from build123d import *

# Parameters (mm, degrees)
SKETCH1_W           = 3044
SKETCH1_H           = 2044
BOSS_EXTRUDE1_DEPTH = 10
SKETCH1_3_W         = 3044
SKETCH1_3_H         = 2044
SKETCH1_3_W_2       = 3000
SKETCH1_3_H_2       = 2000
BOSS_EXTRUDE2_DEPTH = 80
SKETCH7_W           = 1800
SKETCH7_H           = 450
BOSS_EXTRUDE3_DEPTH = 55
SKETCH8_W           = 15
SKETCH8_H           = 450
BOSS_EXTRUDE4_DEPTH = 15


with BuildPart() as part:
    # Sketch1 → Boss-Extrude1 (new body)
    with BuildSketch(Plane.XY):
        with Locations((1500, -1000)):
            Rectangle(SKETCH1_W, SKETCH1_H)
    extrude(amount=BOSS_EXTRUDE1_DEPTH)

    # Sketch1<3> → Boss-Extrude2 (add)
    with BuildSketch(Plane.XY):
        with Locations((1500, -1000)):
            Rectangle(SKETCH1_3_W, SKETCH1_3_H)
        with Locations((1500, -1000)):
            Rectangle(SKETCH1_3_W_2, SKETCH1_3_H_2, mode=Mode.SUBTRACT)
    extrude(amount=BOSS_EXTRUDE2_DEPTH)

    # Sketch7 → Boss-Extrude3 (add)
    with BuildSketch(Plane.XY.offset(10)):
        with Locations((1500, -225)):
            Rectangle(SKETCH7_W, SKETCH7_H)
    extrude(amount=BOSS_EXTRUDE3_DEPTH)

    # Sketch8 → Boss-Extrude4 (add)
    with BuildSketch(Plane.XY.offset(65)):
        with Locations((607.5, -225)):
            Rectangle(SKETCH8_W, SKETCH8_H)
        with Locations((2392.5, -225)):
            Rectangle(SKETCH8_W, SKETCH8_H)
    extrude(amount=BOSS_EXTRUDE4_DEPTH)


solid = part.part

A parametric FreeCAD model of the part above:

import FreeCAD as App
import Part
import Sketcher

V = App.Vector

doc = App.newDocument("Part")
params = doc.addObject("Spreadsheet::Sheet", "Params")
for row, (alias, value) in enumerate([
    ("sketch1_width", "3044 mm"),
    ("sketch1_height", "2044 mm"),
    ("pad1_length", "10 mm"),
    ("sketch2_width", "3044 mm"),
    ("sketch2_width2", "3000 mm"),
    ("sketch2_height", "2044 mm"),
    ("sketch2_height2", "2000 mm"),
    ("pad2_length", "80 mm"),
    ("sketch3_width", "1800 mm"),
    ("sketch3_height", "450 mm"),
    ("pad3_length", "55 mm"),
    ("sketch4_width", "15 mm"),
    ("sketch4_height", "450 mm"),
    ("pad4_length", "15 mm"),
], start=1):
    params.set(f"A{row}", alias)
    params.set(f"B{row}", "=" + value)
    params.setAlias(f"B{row}", alias)

body = doc.addObject("PartDesign::Body", "Body")

# Sketch on XY plane
sketch1 = body.newObject("Sketcher::SketchObject", "Sketch")
sketch1.AttachmentSupport = (doc.getObject("XY_Plane"), [""])
sketch1.MapMode = "FlatFace"
sketch1.addGeometry([
    Part.LineSegment(V(-22, 22, 0), V(-22, -2022, 0)),
    Part.LineSegment(V(-22, -2022, 0), V(3022, -2022, 0)),
    Part.LineSegment(V(3022, -2022, 0), V(3022, 22, 0)),
    Part.LineSegment(V(3022, 22, 0), V(-22, 22, 0)),
], False)
sketch1.addConstraint([
    Sketcher.Constraint("Coincident", 0, 2, 1, 1),
    Sketcher.Constraint("Coincident", 1, 2, 2, 1),
    Sketcher.Constraint("Coincident", 2, 2, 3, 1),
    Sketcher.Constraint("Coincident", 3, 2, 0, 1),
    Sketcher.Constraint("Vertical", 0),
    Sketcher.Constraint("Horizontal", 1),
    Sketcher.Constraint("Vertical", 2),
    Sketcher.Constraint("Horizontal", 3),
    Sketcher.Constraint("DistanceX", 1, 1, 1, 2, 3044.0),
    Sketcher.Constraint("DistanceY", 0, 2, 0, 1, 2044.0),
    Sketcher.Constraint("DistanceX", 0, 2, -1, 1, 22.0),
    Sketcher.Constraint("DistanceY", 0, 2, -1, 1, 2022.0),
])
sketch1.setExpression("Constraints[8]", "Params.sketch1_width")
sketch1.setExpression("Constraints[9]", "Params.sketch1_height")
pad1 = body.newObject("PartDesign::Pad", "Pad")
pad1.Profile = sketch1
pad1.setExpression("Length", "Params.pad1_length")

# Sketch on XY plane
sketch2 = body.newObject("Sketcher::SketchObject", "Sketch001")
sketch2.AttachmentSupport = (doc.getObject("XY_Plane"), [""])
sketch2.MapMode = "FlatFace"
sketch2.addGeometry([
    Part.LineSegment(V(-22, 22, 0), V(-22, -2022, 0)),  # 0
    Part.LineSegment(V(-22, -2022, 0), V(3022, -2022, 0)),  # 1
    Part.LineSegment(V(3022, -2022, 0), V(3022, 22, 0)),  # 2
    Part.LineSegment(V(3022, 22, 0), V(-22, 22, 0)),  # 3
    Part.LineSegment(V(3000, -2000, 0), V(0, -2000, 0)),  # 4
    Part.LineSegment(V(0, -2000, 0), V(0, 0, 0)),  # 5
    Part.LineSegment(V(0, 0, 0), V(3000, 0, 0)),  # 6
    Part.LineSegment(V(3000, 0, 0), V(3000, -2000, 0)),  # 7
], False)
sketch2.addConstraint([
    Sketcher.Constraint("Coincident", 0, 2, 1, 1),
    Sketcher.Constraint("Coincident", 1, 2, 2, 1),
    Sketcher.Constraint("Coincident", 2, 2, 3, 1),
    Sketcher.Constraint("Coincident", 3, 2, 0, 1),
    Sketcher.Constraint("Coincident", 4, 2, 5, 1),
    Sketcher.Constraint("Coincident", 5, 2, 6, 1),
    Sketcher.Constraint("Coincident", 6, 2, 7, 1),
    Sketcher.Constraint("Coincident", 7, 2, 4, 1),
    Sketcher.Constraint("Vertical", 0),
    Sketcher.Constraint("Horizontal", 1),
    Sketcher.Constraint("Vertical", 2),
    Sketcher.Constraint("Horizontal", 3),
    Sketcher.Constraint("Horizontal", 4),
    Sketcher.Constraint("Vertical", 5),
    Sketcher.Constraint("Horizontal", 6),
    Sketcher.Constraint("Vertical", 7),
    Sketcher.Constraint("Coincident", 5, 2, -1, 1),
    Sketcher.Constraint("DistanceX", 1, 1, 1, 2, 3044.0),
    Sketcher.Constraint("DistanceX", 4, 2, 4, 1, 3000.0),
    Sketcher.Constraint("DistanceY", 0, 2, 0, 1, 2044.0),
    Sketcher.Constraint("DistanceY", 5, 1, 5, 2, 2000.0),
    Sketcher.Constraint("DistanceX", 0, 2, -1, 1, 22.0),
    Sketcher.Constraint("DistanceY", 0, 2, -1, 1, 2022.0),
])
sketch2.setExpression("Constraints[17]", "Params.sketch2_width")
sketch2.setExpression("Constraints[18]", "Params.sketch2_width2")
sketch2.setExpression("Constraints[19]", "Params.sketch2_height")
sketch2.setExpression("Constraints[20]", "Params.sketch2_height2")
pad2 = body.newObject("PartDesign::Pad", "Pad001")
pad2.Profile = sketch2
pad2.setExpression("Length", "Params.pad2_length")

# Sketch on XY plane
sketch3 = body.newObject("Sketcher::SketchObject", "Sketch002")
sketch3.AttachmentSupport = (doc.getObject("XY_Plane"), [""])
sketch3.MapMode = "FlatFace"
sketch3.AttachmentOffset = App.Placement(V(0, 0, 10), App.Rotation())
sketch3.addGeometry([
    Part.LineSegment(V(600, 0, 0), V(600, -450, 0)),
    Part.LineSegment(V(600, -450, 0), V(2400, -450, 0)),
    Part.LineSegment(V(2400, -450, 0), V(2400, 0, 0)),
    Part.LineSegment(V(2400, 0, 0), V(600, 0, 0)),
], False)
sketch3.addConstraint([
    Sketcher.Constraint("Coincident", 0, 2, 1, 1),
    Sketcher.Constraint("Coincident", 1, 2, 2, 1),
    Sketcher.Constraint("Coincident", 2, 2, 3, 1),
    Sketcher.Constraint("Coincident", 3, 2, 0, 1),
    Sketcher.Constraint("Vertical", 0),
    Sketcher.Constraint("Horizontal", 1),
    Sketcher.Constraint("Vertical", 2),
    Sketcher.Constraint("Horizontal", 3),
    Sketcher.Constraint("PointOnObject", 2, 2, -1),
    Sketcher.Constraint("DistanceX", 1, 1, 1, 2, 1800.0),
    Sketcher.Constraint("DistanceY", 0, 2, 0, 1, 450.0),
    Sketcher.Constraint("DistanceX", -1, 1, 0, 2, 600.0),
])
sketch3.setExpression("Constraints[9]", "Params.sketch3_width")
sketch3.setExpression("Constraints[10]", "Params.sketch3_height")
pad3 = body.newObject("PartDesign::Pad", "Pad002")
pad3.Profile = sketch3
pad3.setExpression("Length", "Params.pad3_length")

# Sketch on XY plane
sketch4 = body.newObject("Sketcher::SketchObject", "Sketch003")
sketch4.AttachmentSupport = (doc.getObject("XY_Plane"), [""])
sketch4.MapMode = "FlatFace"
sketch4.AttachmentOffset = App.Placement(V(0, 0, 65), App.Rotation())
sketch4.addGeometry([
    Part.LineSegment(V(600, 0, 0), V(600, -450, 0)),  # 0
    Part.LineSegment(V(600, -450, 0), V(615, -450, 0)),  # 1
    Part.LineSegment(V(615, -450, 0), V(615, 0, 0)),  # 2
    Part.LineSegment(V(615, 0, 0), V(600, 0, 0)),  # 3
    Part.LineSegment(V(2385, 0, 0), V(2385, -450, 0)),  # 4
    Part.LineSegment(V(2385, -450, 0), V(2400, -450, 0)),  # 5
    Part.LineSegment(V(2400, -450, 0), V(2400, 0, 0)),  # 6
    Part.LineSegment(V(2400, 0, 0), V(2385, 0, 0)),  # 7
], False)
sketch4.addConstraint([
    Sketcher.Constraint("Coincident", 0, 2, 1, 1),
    Sketcher.Constraint("Coincident", 1, 2, 2, 1),
    Sketcher.Constraint("Coincident", 2, 2, 3, 1),
    Sketcher.Constraint("Coincident", 3, 2, 0, 1),
    Sketcher.Constraint("Coincident", 4, 2, 5, 1),
    Sketcher.Constraint("Coincident", 5, 2, 6, 1),
    Sketcher.Constraint("Coincident", 6, 2, 7, 1),
    Sketcher.Constraint("Coincident", 7, 2, 4, 1),
    Sketcher.Constraint("Vertical", 0),
    Sketcher.Constraint("Horizontal", 1),
    Sketcher.Constraint("Vertical", 2),
    Sketcher.Constraint("Horizontal", 3),
    Sketcher.Constraint("Vertical", 4),
    Sketcher.Constraint("Horizontal", 5),
    Sketcher.Constraint("Vertical", 6),
    Sketcher.Constraint("Horizontal", 7),
    Sketcher.Constraint("PointOnObject", 2, 2, -1),
    Sketcher.Constraint("PointOnObject", 6, 2, -1),
    Sketcher.Constraint("Horizontal", 1, 2, 4, 2),
    Sketcher.Constraint("Equal", 3, 5),
    Sketcher.Constraint("DistanceX", 1, 1, 1, 2, 15.0),
    Sketcher.Constraint("DistanceY", 0, 2, 0, 1, 450.0),
    Sketcher.Constraint("DistanceX", -1, 1, 0, 2, 600.0),
    Sketcher.Constraint("DistanceX", -1, 1, 4, 2, 2385.0),
])
sketch4.setExpression("Constraints[20]", "Params.sketch4_width")
sketch4.setExpression("Constraints[21]", "Params.sketch4_height")
pad4 = body.newObject("PartDesign::Pad", "Pad003")
pad4.Profile = sketch4
pad4.setExpression("Length", "Params.pad4_length")

doc.recompute()
